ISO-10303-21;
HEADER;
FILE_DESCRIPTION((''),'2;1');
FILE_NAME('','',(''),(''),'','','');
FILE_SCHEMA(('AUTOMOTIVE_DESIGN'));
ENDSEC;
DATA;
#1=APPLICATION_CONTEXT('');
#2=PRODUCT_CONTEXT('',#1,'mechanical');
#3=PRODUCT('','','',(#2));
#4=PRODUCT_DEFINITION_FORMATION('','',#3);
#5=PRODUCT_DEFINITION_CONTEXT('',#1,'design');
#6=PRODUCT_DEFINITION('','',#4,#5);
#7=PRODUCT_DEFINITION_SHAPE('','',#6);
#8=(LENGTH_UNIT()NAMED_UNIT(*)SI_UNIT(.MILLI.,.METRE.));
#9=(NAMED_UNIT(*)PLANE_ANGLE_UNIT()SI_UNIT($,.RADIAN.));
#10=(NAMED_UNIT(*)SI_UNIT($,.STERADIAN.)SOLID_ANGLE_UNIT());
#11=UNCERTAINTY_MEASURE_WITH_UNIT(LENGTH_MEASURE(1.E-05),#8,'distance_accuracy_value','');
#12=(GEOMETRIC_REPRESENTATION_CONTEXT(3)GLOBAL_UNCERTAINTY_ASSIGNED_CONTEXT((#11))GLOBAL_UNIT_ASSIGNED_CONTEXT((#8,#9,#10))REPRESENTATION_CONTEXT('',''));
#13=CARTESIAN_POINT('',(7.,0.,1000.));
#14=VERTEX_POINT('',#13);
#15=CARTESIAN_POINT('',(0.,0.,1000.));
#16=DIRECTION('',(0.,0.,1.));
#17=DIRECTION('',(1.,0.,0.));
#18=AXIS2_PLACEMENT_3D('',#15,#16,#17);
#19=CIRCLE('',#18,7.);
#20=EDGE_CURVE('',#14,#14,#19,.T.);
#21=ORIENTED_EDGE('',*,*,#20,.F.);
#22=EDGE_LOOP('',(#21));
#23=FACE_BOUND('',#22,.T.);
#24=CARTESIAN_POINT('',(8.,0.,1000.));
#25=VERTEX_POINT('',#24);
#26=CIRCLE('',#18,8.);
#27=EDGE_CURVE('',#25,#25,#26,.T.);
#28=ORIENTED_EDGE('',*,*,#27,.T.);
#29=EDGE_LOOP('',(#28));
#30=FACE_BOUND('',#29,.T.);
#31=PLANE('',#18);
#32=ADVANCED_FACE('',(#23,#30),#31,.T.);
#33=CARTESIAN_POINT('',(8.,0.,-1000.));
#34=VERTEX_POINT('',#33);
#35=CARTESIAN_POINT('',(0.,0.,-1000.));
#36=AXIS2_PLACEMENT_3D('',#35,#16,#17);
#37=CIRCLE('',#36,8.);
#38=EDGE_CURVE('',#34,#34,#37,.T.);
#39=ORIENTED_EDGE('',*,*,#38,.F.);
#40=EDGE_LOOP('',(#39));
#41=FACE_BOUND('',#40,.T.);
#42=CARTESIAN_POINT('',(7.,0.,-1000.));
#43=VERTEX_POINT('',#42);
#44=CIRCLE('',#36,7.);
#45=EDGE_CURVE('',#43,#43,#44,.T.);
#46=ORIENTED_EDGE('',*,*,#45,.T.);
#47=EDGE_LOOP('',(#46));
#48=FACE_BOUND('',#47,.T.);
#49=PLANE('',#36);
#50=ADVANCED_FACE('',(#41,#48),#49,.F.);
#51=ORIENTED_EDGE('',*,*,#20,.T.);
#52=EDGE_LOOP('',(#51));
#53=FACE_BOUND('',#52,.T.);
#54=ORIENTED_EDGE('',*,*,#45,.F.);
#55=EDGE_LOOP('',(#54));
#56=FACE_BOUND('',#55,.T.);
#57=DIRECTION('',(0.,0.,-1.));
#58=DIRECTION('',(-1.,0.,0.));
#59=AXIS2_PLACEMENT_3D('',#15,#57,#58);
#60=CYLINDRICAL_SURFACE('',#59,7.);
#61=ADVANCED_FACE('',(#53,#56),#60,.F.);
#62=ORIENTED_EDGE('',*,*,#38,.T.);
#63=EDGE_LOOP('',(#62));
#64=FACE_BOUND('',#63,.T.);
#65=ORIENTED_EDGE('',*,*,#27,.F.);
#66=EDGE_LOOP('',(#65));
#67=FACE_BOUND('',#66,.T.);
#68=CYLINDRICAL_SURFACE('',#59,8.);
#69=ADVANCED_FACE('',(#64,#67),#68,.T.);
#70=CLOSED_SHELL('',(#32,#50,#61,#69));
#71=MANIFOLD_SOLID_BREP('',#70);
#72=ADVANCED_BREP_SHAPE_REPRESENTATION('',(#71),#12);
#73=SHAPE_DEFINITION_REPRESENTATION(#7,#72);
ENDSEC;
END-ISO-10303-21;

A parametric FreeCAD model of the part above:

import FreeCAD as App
import Part
import Sketcher

V = App.Vector
Q = App.Units.Quantity

doc = App.newDocument("Part")
body = doc.addObject("PartDesign::Body", "Body")

sketch1 = doc.addObject("Sketcher::SketchObject", "Sketch")
body.addObject(sketch1)
sketch1.AttachmentSupport = (doc.XY_Plane, [""])
sketch1.MapMode = "FlatFace"
sketch1.addGeometry(Part.Circle(V(0, 0, 0), V(0, 0, 1), 8), False)
sketch1.addGeometry(Part.Circle(V(0, 0, 0), V(0, 0, 1), 7), False)
sketch1.addConstraint(Sketcher.Constraint("Coincident", 0, 3, -1, 1))
sketch1.addConstraint(Sketcher.Constraint("Coincident", 1, 3, -1, 1))
sketch1.addConstraint(Sketcher.Constraint("Diameter", 0, Q("16 mm")))
sketch1.addConstraint(Sketcher.Constraint("Diameter", 1, Q("14 mm")))
pad1 = doc.addObject("PartDesign::Pad", "Pad")
body.addObject(pad1)
pad1.Profile = sketch1
pad1.Length = 2000
pad1.Midplane = True

doc.recompute()
